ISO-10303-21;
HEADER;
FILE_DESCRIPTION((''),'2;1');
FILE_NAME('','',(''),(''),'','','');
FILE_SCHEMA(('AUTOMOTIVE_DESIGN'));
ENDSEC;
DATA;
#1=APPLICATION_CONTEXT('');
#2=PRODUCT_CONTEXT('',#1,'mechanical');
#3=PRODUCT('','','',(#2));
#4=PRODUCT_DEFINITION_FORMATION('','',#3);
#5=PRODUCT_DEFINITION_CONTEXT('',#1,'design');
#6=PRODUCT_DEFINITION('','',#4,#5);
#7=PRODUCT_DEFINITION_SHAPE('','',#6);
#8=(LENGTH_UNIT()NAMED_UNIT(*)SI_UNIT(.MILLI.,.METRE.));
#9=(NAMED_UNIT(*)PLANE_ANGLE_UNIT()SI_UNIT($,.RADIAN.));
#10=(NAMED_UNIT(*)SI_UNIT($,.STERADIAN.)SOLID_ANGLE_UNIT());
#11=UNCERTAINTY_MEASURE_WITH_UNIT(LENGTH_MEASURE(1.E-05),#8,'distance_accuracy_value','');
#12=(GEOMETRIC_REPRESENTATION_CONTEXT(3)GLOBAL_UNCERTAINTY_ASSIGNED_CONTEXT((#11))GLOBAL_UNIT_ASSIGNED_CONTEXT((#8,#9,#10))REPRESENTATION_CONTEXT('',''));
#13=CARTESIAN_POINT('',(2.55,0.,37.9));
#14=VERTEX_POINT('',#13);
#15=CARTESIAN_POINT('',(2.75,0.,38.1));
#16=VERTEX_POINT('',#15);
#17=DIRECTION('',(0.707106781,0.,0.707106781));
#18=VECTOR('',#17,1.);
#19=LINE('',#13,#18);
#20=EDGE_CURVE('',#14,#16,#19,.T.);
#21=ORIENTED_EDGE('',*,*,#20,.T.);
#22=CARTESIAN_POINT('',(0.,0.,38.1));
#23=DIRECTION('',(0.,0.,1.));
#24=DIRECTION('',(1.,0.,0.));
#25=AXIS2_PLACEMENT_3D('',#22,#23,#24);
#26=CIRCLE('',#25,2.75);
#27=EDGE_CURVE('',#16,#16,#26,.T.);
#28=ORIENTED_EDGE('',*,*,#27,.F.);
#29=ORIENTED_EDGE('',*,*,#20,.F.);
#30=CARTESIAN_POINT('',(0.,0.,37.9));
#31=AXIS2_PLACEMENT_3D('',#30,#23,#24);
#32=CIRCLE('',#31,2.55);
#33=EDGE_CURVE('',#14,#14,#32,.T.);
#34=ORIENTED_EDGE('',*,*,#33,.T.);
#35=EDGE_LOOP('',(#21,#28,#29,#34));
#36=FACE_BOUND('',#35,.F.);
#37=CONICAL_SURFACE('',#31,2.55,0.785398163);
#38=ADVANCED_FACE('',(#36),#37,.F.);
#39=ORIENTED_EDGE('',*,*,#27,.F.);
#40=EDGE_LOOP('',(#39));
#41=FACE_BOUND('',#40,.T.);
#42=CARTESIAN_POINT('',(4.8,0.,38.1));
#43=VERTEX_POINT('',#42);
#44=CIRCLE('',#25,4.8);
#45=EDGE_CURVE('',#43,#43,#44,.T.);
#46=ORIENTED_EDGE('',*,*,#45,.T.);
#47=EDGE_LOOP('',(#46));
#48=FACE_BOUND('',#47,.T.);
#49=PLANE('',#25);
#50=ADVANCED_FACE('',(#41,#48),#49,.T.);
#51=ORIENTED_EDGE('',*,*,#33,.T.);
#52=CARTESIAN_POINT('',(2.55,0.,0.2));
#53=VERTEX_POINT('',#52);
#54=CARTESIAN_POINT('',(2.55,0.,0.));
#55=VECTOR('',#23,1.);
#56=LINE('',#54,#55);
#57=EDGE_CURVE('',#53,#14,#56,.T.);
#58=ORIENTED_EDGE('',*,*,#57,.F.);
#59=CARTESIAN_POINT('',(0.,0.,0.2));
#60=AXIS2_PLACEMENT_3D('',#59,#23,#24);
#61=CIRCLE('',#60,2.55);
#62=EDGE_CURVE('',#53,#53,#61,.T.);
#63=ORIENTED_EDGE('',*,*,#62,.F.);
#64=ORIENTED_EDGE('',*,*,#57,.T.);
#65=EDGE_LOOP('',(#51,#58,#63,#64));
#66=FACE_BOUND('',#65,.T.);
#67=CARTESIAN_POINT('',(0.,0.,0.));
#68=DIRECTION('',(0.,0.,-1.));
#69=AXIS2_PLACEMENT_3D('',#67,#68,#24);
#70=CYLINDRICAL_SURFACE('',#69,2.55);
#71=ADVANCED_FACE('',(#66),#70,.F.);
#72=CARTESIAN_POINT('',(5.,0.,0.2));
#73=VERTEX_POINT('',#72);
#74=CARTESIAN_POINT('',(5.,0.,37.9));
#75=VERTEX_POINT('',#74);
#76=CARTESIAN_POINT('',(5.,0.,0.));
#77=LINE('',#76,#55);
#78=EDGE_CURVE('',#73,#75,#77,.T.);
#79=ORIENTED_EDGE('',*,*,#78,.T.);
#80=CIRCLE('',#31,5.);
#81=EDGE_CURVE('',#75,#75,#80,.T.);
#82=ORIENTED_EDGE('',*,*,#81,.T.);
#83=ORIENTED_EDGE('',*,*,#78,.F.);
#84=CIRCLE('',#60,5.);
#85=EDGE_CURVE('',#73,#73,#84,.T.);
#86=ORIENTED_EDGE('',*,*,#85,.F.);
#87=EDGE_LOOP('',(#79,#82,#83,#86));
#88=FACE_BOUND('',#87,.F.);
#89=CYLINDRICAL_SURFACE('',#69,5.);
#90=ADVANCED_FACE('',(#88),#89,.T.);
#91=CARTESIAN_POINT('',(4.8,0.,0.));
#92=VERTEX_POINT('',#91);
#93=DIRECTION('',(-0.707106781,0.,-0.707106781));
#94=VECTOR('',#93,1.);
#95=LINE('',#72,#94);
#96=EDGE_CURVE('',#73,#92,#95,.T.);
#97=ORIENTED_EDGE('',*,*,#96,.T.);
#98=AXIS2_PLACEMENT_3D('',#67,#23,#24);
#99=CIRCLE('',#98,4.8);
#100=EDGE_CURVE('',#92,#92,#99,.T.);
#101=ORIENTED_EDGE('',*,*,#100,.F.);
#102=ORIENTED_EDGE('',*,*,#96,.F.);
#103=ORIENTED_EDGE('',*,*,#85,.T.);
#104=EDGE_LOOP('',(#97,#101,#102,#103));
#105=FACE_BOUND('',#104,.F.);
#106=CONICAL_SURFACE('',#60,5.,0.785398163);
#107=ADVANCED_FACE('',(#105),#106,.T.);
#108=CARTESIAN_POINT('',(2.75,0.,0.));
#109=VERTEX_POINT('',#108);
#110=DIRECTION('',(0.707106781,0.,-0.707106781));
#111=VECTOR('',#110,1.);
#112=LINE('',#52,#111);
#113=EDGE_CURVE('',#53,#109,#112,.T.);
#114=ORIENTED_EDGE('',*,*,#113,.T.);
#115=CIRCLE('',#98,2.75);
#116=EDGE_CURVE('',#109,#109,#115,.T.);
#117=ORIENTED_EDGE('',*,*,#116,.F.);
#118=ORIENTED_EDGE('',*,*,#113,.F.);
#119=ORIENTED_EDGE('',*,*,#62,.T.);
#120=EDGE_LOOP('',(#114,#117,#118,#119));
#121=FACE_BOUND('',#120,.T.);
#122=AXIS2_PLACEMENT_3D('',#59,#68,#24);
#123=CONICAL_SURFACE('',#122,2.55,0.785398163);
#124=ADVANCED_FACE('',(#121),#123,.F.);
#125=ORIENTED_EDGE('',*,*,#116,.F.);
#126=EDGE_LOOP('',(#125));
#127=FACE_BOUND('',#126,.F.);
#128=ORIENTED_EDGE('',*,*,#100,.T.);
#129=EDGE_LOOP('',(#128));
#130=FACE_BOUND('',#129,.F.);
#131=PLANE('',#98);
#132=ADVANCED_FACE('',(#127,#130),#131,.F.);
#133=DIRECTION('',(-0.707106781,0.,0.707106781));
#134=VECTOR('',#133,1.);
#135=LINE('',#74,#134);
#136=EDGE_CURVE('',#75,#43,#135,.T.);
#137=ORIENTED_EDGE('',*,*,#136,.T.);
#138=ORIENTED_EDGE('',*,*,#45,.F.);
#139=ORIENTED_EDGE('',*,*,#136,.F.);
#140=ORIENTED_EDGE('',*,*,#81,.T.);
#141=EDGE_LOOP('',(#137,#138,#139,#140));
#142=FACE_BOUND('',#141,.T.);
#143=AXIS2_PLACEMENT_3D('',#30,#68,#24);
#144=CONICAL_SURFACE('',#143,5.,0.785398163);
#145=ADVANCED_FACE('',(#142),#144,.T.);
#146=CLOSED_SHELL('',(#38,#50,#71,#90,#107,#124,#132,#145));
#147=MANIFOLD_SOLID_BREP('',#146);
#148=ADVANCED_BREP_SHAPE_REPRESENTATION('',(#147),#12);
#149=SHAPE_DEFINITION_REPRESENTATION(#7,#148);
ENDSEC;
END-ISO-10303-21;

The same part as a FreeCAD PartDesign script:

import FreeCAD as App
import Part
import Sketcher


def edges_at(feature, points):
    """Names of the edges that pass closest to the given points."""
    edges = feature.Shape.Edges
    near = lambda p: min(range(len(edges)), key=lambda i: edges[i].distToShape(Part.Vertex(*p))[0])
    return sorted({f"Edge{near(p) + 1}" for p in points})

doc = App.newDocument("Part")
body = doc.addObject("PartDesign::Body", "Body")

sketch1 = body.newObject("Sketcher::SketchObject", "Sketch")
sketch1.AttachmentSupport = (doc.getObject("XY_Plane"), [""])
sketch1.MapMode = "FlatFace"
sketch1.addGeometry([
    Part.Circle(App.Vector(0, 0, 0), App.Vector(0, 0, 1), 5),
    Part.Circle(App.Vector(0, 0, 0), App.Vector(0, 0, 1), 2.55),
], False)
sketch1.addConstraint([
    Sketcher.Constraint("Coincident", 0, 3, -1, 1),
    Sketcher.Constraint("Coincident", 1, 3, -1, 1),
    Sketcher.Constraint("Diameter", 0, 10.0),
    Sketcher.Constraint("Diameter", 1, 5.1),
])
pad1 = body.newObject("PartDesign::Pad", "Pad")
pad1.Profile = sketch1
pad1.Length = 38.1
doc.recompute()

chamfer = body.newObject("PartDesign::Chamfer", "Chamfer")
chamfer.Base = (pad1, edges_at(pad1, [
    (-5, 0, 0),
    (-5, 0, 38.1),
    (-2.55, 0, 0),
    (-2.55, 0, 38.1),
]))
chamfer.Size = 0.2

doc.recompute()
